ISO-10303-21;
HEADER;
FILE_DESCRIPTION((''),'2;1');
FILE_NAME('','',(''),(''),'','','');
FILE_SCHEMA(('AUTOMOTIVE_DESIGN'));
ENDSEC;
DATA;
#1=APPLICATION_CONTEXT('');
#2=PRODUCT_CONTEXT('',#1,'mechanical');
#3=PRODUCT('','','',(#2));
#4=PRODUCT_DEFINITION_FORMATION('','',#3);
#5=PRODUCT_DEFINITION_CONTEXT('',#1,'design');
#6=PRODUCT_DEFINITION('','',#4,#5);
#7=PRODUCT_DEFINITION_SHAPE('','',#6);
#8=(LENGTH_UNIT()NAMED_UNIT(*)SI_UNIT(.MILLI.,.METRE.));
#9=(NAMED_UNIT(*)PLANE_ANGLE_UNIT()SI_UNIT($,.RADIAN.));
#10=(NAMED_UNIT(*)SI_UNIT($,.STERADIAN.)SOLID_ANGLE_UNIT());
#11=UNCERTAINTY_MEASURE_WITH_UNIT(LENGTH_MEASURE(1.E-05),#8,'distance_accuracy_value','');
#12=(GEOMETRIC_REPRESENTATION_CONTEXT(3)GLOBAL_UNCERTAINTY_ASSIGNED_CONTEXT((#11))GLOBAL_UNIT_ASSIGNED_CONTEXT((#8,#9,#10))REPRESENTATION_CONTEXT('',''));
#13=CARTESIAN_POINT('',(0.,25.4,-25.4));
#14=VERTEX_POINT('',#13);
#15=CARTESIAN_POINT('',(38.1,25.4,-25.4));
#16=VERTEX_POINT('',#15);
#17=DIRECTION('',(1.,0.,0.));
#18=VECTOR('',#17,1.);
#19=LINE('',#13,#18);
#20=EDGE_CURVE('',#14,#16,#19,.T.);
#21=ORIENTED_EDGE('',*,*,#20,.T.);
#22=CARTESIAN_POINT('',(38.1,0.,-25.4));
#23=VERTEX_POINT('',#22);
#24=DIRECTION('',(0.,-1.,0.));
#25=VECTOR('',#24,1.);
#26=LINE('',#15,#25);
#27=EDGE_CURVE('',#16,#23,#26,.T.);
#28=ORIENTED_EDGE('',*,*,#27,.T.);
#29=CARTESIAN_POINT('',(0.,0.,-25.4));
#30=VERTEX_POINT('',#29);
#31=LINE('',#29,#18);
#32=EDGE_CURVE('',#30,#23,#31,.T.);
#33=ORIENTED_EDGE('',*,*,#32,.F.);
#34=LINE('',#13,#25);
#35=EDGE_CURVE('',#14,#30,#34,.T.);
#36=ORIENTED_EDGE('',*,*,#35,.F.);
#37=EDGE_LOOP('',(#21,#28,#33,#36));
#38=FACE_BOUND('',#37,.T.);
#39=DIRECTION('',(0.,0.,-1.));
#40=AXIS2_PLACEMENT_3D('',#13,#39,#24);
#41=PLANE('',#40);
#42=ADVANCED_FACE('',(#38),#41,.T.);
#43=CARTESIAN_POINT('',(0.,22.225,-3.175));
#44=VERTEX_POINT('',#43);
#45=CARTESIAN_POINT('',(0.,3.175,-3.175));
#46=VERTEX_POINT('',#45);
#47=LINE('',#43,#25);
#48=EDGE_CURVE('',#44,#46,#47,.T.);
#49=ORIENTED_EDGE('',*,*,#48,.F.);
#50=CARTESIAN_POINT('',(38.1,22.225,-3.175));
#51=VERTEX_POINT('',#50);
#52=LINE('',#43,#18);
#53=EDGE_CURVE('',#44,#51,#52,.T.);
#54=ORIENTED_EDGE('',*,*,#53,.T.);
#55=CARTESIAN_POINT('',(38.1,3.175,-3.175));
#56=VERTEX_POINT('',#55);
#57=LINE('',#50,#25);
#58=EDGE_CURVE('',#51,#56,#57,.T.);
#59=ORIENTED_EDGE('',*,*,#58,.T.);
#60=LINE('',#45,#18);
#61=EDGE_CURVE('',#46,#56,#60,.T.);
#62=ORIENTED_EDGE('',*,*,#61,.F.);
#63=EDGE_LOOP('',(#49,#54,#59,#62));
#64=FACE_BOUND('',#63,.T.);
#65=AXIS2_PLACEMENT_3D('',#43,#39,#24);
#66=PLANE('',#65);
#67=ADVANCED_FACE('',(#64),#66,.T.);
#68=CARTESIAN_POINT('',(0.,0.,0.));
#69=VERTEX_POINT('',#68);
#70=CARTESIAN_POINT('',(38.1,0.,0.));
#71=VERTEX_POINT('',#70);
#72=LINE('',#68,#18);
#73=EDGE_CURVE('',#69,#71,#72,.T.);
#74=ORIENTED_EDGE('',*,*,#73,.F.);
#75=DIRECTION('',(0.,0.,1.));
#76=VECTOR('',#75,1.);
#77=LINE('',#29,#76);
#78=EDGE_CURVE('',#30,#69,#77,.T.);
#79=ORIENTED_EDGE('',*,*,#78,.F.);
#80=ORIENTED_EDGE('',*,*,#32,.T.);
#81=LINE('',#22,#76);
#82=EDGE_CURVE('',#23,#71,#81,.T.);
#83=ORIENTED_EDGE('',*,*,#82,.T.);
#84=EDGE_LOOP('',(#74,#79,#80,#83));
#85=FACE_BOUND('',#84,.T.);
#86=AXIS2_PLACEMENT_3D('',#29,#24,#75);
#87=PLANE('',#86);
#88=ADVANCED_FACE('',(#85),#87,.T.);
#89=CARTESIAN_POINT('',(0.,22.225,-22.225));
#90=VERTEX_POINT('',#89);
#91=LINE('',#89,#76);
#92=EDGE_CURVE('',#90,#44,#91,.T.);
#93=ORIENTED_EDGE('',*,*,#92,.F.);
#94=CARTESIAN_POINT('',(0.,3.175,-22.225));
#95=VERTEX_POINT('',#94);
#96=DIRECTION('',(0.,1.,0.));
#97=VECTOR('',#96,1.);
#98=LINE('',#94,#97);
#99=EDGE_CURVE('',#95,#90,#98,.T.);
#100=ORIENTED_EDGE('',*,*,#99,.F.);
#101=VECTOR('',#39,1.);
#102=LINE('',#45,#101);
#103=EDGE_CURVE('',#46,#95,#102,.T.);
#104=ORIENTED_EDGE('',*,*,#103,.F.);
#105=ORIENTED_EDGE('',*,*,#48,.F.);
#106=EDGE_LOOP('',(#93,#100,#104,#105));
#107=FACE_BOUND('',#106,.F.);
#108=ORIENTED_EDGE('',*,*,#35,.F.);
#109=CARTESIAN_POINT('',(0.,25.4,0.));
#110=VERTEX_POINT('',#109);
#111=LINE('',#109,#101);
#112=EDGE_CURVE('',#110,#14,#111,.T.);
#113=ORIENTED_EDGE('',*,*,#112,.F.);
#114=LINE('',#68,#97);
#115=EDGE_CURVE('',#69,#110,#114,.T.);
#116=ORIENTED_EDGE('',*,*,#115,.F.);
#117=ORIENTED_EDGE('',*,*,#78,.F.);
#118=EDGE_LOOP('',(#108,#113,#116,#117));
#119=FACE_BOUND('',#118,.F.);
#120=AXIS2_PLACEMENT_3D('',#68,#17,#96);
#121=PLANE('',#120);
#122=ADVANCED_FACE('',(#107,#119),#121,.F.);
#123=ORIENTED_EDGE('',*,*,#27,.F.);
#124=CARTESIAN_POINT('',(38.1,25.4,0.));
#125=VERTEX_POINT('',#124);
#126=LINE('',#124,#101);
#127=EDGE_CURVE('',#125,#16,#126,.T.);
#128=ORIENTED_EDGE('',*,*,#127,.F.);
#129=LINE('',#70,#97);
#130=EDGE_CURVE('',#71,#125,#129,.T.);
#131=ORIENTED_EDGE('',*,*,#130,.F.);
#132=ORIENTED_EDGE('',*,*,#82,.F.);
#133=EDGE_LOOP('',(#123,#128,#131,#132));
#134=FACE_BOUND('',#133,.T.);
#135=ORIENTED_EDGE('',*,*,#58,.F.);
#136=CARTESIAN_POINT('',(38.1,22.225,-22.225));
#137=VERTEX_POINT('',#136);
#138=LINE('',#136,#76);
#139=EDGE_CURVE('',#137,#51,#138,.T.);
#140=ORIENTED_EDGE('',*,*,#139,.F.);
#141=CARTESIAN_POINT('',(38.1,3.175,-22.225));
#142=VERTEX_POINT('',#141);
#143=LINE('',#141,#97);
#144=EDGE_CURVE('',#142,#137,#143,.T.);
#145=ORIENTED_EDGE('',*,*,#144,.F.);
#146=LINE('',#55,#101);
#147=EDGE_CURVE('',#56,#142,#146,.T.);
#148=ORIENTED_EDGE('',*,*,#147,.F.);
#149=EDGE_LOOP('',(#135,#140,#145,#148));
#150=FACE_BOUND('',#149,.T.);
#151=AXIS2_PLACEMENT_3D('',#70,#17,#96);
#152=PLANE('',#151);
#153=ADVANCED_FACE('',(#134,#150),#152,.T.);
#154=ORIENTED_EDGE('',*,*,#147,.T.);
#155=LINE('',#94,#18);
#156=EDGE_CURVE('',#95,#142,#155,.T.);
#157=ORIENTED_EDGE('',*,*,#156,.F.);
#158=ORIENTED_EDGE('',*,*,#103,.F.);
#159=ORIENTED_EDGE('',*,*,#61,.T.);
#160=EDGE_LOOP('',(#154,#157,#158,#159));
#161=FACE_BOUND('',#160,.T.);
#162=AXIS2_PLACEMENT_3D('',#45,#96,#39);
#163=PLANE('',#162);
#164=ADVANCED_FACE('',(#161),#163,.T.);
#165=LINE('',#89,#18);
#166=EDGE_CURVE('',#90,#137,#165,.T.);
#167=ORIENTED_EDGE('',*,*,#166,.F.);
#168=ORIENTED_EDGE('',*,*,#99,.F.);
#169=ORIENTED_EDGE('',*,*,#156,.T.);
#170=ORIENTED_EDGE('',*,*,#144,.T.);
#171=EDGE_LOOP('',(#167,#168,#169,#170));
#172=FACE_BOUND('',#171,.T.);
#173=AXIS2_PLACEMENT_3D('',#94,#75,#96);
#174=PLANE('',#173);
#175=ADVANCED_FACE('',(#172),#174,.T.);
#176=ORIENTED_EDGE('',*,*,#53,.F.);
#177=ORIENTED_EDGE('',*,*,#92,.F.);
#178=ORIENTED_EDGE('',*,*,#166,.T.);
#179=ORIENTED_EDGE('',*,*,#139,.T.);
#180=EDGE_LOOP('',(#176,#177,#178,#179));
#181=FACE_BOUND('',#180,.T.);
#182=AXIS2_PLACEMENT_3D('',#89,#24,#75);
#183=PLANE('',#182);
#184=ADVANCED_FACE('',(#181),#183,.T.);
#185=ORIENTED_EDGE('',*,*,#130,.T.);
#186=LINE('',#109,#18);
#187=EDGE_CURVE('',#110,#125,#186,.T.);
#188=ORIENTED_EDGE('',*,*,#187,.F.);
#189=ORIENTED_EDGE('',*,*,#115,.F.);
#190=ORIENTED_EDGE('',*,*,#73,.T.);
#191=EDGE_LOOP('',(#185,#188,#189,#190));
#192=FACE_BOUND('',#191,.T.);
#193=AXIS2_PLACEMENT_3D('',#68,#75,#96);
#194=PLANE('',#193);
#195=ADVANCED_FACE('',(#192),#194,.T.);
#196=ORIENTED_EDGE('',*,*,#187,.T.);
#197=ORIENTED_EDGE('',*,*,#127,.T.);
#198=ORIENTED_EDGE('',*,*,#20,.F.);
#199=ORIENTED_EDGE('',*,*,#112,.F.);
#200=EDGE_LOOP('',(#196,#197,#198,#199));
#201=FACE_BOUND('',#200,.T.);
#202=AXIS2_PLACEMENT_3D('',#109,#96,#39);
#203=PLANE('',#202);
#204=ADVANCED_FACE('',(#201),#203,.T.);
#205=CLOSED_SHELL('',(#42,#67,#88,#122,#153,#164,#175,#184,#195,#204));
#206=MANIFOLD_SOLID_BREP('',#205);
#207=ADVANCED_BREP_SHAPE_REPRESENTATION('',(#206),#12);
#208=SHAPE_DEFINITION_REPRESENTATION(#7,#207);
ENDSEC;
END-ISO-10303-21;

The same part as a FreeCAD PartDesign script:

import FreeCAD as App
import Part
import Sketcher
from FreeCAD import Vector
Q = App.Units.Quantity


def add_polygon(sketch, points):
    """Adds a closed chain of lines whose ends are joined by coincident constraints."""
    first, n = sketch.GeometryCount, len(points)
    for a, b in zip(points, points[1:] + points[:1]):
        sketch.addGeometry(Part.LineSegment(App.Vector(*a, 0), App.Vector(*b, 0)), False)
    for i in range(n):
        sketch.addConstraint(Sketcher.Constraint("Coincident", first + i, 2, first + (i + 1) % n, 1))

doc = App.newDocument("Part")
body = doc.addObject("PartDesign::Body", "Body")

sketch1 = body.newObject("Sketcher::SketchObject", "Sketch")
sketch1.AttachmentSupport = (doc.getObject("YZ_Plane"), [""])
sketch1.MapMode = "FlatFace"
add_polygon(sketch1, [(25, 0), (0, 0), (0, -25), (25, -25)])
add_polygon(sketch1, [(22, -3), (22, -22), (3, -22), (3, -3)])
sketch1.addConstraint([
    Sketcher.Constraint("Horizontal", 0),
    Sketcher.Constraint("Vertical", 1),
    Sketcher.Constraint("Horizontal", 2),
    Sketcher.Constraint("Vertical", 3),
    Sketcher.Constraint("Vertical", 4),
    Sketcher.Constraint("Horizontal", 5),
    Sketcher.Constraint("Vertical", 6),
    Sketcher.Constraint("Horizontal", 7),
    Sketcher.Constraint("Coincident", 0, 2, -1, 1),
    Sketcher.Constraint("Equal", 2, 1),
    Sketcher.Constraint("Equal", 7, 4),
    Sketcher.Constraint("DistanceX", 0, 2, 0, 1, Q("1 in")),
    Sketcher.Constraint("DistanceX", -1, 1, 5, 2, Q("0.125 in")),
    Sketcher.Constraint("DistanceY", 6, 2, -1, 1, Q("0.125 in")),
    Sketcher.Constraint("DistanceX", 4, 2, 2, 2, Q("0.125 in")),
])
pad1 = body.newObject("PartDesign::Pad", "Pad")
pad1.Profile = sketch1
pad1.Length = Q("1.5 in")

doc.recompute()
